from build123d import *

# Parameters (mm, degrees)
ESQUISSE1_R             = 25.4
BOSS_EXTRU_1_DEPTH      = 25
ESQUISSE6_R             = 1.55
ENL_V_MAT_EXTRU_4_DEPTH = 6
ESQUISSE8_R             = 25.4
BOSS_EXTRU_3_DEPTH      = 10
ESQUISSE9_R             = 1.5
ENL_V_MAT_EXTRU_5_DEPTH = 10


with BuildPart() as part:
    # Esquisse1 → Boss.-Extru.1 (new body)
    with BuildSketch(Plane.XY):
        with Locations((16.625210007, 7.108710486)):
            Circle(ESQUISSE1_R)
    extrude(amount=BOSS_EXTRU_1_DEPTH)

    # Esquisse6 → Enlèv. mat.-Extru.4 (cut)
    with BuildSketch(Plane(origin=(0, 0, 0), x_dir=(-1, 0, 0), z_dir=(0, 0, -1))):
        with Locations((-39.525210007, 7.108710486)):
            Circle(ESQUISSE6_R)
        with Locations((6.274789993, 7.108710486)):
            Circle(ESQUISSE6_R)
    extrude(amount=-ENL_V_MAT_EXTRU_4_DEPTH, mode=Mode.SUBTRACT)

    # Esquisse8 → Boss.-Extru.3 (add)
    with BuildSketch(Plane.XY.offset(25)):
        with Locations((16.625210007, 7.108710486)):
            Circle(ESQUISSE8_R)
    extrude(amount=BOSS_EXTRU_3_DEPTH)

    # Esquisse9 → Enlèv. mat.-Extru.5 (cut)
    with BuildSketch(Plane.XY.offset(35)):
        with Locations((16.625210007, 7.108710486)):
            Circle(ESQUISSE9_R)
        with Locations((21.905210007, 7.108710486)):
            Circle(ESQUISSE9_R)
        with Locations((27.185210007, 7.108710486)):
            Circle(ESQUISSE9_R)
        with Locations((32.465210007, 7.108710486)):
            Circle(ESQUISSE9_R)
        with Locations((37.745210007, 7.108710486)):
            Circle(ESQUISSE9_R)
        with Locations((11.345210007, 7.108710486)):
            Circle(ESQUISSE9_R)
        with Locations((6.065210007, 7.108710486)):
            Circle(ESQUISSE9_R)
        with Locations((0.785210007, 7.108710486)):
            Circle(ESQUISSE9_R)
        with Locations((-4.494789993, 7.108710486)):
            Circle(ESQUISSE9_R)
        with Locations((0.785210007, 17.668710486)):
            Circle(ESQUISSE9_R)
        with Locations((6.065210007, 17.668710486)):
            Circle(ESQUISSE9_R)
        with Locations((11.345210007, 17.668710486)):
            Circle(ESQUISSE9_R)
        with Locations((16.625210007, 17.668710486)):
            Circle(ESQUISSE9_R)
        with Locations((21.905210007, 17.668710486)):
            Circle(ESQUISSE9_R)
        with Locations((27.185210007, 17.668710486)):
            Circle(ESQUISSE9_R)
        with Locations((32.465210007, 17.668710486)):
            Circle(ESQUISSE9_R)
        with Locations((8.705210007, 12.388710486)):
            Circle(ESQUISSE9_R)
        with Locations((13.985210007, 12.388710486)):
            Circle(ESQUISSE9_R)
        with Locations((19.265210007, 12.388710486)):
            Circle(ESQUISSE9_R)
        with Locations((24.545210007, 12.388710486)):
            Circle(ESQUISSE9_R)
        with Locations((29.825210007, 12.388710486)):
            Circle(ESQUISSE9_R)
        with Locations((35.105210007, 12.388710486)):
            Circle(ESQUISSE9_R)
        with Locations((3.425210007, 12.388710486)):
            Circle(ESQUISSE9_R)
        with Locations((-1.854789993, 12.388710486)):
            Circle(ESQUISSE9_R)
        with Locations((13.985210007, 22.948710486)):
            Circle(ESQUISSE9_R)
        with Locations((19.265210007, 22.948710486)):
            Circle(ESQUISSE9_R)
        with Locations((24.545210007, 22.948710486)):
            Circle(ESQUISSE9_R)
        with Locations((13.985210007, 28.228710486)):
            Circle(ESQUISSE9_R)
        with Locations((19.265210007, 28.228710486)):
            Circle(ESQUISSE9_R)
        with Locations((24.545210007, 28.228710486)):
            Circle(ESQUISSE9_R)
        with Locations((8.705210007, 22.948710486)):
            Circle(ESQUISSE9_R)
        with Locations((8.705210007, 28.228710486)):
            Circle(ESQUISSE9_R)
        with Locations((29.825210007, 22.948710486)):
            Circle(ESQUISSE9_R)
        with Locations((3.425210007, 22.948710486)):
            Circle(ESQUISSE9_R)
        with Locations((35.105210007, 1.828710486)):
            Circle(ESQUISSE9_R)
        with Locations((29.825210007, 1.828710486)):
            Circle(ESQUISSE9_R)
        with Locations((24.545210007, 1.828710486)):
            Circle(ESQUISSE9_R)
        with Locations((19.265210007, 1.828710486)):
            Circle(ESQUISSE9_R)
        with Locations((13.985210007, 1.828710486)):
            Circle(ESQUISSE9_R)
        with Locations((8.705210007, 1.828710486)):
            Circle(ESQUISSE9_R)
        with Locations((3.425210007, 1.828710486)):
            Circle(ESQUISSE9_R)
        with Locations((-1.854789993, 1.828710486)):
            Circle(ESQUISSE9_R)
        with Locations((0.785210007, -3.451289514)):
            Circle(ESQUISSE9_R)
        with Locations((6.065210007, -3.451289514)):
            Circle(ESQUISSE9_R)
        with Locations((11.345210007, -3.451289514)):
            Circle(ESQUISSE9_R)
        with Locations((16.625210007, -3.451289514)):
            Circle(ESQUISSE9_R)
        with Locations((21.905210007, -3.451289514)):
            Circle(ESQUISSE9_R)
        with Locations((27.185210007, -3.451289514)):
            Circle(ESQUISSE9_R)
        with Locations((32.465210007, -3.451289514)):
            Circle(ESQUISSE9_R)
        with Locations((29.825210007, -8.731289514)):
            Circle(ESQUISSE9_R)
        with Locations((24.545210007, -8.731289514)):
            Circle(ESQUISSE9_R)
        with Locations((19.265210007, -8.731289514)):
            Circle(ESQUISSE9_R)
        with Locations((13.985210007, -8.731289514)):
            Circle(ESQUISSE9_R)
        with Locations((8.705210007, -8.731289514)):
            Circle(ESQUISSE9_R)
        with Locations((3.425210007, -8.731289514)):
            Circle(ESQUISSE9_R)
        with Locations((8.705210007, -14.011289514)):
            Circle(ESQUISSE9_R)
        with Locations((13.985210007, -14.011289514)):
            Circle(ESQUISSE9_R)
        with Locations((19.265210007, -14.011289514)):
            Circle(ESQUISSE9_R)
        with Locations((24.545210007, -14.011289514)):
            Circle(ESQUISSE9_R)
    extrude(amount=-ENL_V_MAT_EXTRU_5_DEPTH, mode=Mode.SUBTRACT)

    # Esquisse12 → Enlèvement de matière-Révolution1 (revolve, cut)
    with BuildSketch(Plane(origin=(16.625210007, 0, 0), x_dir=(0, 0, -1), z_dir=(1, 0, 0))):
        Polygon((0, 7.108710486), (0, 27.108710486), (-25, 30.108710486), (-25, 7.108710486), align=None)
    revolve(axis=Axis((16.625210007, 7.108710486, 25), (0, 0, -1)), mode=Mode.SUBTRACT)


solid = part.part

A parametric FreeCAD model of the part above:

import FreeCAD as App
import Part
import Sketcher

V = App.Vector
Q = App.Units.Quantity


def add_polygon(sketch, points):
    """Adds a closed chain of lines whose ends are joined by coincident constraints."""
    first, n = sketch.GeometryCount, len(points)
    for a, b in zip(points, points[1:] + points[:1]):
        sketch.addGeometry(Part.LineSegment(App.Vector(*a, 0), App.Vector(*b, 0)), False)
    for i in range(n):
        sketch.addConstraint(Sketcher.Constraint("Coincident", first + i, 2, first + (i + 1) % n, 1))

doc = App.newDocument("Part")
params = doc.addObject("Spreadsheet::Sheet", "Params")
for row, (alias, value) in enumerate([
    ("sketch1_diameter", "50.8 mm"),
    ("pad1_length", "25 mm"),
    ("sketch2_diameter", "3.1 mm"),
    ("pocket1_length", "6 mm"),
    ("sketch3_diameter", "50.8 mm"),
    ("pad2_length", "10 mm"),
    ("sketch4_diameter", "3 mm"),
    ("pocket2_length", "10 mm"),
    ("sketch5_width", "20 mm"),
    ("sketch5_width2", "23 mm"),
    ("sketch5_height", "25 mm"),
    ("groove_angle", "360 deg"),
], start=1):
    params.set(f"A{row}", alias)
    params.set(f"B{row}", "=" + value)
    params.setAlias(f"B{row}", alias)

body = doc.addObject("PartDesign::Body", "Body")

# Sketch on XY plane
sketch1 = body.newObject("Sketcher::SketchObject", "Sketch")
sketch1.AttachmentSupport = (doc.getObject("XY_Plane"), [""])
sketch1.MapMode = "FlatFace"
sketch1.addGeometry(Part.Circle(V(16.62521, 7.10871, 0), V(0, 0, 1), 25.4), False)
sketch1.addConstraint([
    Sketcher.Constraint("Diameter", 0, Q("50.8 mm")),
    Sketcher.Constraint("DistanceX", -1, 1, 0, 3, Q("16.62521 mm")),
    Sketcher.Constraint("DistanceY", -1, 1, 0, 3, Q("7.10871 mm")),
])
sketch1.setExpression("Constraints[0]", "Params.sketch1_diameter")
pad1 = body.newObject("PartDesign::Pad", "Pad")
pad1.Profile = sketch1
pad1.setExpression("Length", "Params.pad1_length")

# Sketch on XY plane
sketch2 = body.newObject("Sketcher::SketchObject", "Sketch001")
sketch2.AttachmentSupport = (doc.getObject("XY_Plane"), [""])
sketch2.MapMode = "FlatFace"
sketch2.addGeometry([
    Part.Circle(V(39.52521, 7.10871, 0), V(0, 0, 1), 1.55),
    Part.Circle(V(-6.27479, 7.10871, 0), V(0, 0, 1), 1.55),
], False)
sketch2.addConstraint([
    Sketcher.Constraint("Equal", 0, 1),
    Sketcher.Constraint("Horizontal", 0, 3, 1, 3),
    Sketcher.Constraint("Diameter", 0, Q("3.1 mm")),
    Sketcher.Constraint("DistanceX", 1, 3, 0, 3, Q("45.8 mm")),
    Sketcher.Constraint("DistanceX", -1, 1, 0, 3, Q("39.52521 mm")),
    Sketcher.Constraint("DistanceY", -1, 1, 0, 3, Q("7.10871 mm")),
])
sketch2.setExpression("Constraints[2]", "Params.sketch2_diameter")
pocket1 = body.newObject("PartDesign::Pocket", "Pocket")
pocket1.Profile = sketch2
pocket1.setExpression("Length", "Params.pocket1_length")
pocket1.Reversed = True

# Sketch on XY plane
sketch3 = body.newObject("Sketcher::SketchObject", "Sketch002")
sketch3.AttachmentSupport = (doc.getObject("XY_Plane"), [""])
sketch3.MapMode = "FlatFace"
sketch3.AttachmentOffset = App.Placement(V(0, 0, 25), App.Rotation())
sketch3.addGeometry(Part.Circle(V(16.62521, 7.10871, 0), V(0, 0, 1), 25.4), False)
sketch3.addConstraint([
    Sketcher.Constraint("Diameter", 0, Q("50.8 mm")),
    Sketcher.Constraint("DistanceX", -1, 1, 0, 3, Q("16.62521 mm")),
    Sketcher.Constraint("DistanceY", -1, 1, 0, 3, Q("7.10871 mm")),
])
sketch3.setExpression("Constraints[0]", "Params.sketch3_diameter")
pad2 = body.newObject("PartDesign::Pad", "Pad001")
pad2.Profile = sketch3
pad2.setExpression("Length", "Params.pad2_length")

# Sketch on XY plane
sketch4 = body.newObject("Sketcher::SketchObject", "Sketch003")
sketch4.AttachmentSupport = (doc.getObject("XY_Plane"), [""])
sketch4.MapMode = "FlatFace"
sketch4.AttachmentOffset = App.Placement(V(0, 0, 35), App.Rotation())
sketch4.addGeometry([
    Part.Circle(V(16.62521, 7.10871, 0), V(0, 0, 1), 1.5),  # 0
    Part.Circle(V(21.90521, 7.10871, 0), V(0, 0, 1), 1.5),  # 1
    Part.Circle(V(27.18521, 7.10871, 0), V(0, 0, 1), 1.5),  # 2
    Part.Circle(V(32.46521, 7.10871, 0), V(0, 0, 1), 1.5),  # 3
    Part.Circle(V(37.74521, 7.10871, 0), V(0, 0, 1), 1.5),  # 4
    Part.Circle(V(11.34521, 7.10871, 0), V(0, 0, 1), 1.5),  # 5
    Part.Circle(V(6.06521, 7.10871, 0), V(0, 0, 1), 1.5),  # 6
    Part.Circle(V(0.78521, 7.10871, 0), V(0, 0, 1), 1.5),  # 7
    Part.Circle(V(-4.49479, 7.10871, 0), V(0, 0, 1), 1.5),  # 8
    Part.Circle(V(0.78521, 17.66871, 0), V(0, 0, 1), 1.5),  # 9
    Part.Circle(V(6.06521, 17.66871, 0), V(0, 0, 1), 1.5),  # 10
    Part.Circle(V(11.34521, 17.66871, 0), V(0, 0, 1), 1.5),  # 11
    Part.Circle(V(16.62521, 17.66871, 0), V(0, 0, 1), 1.5),  # 12
    Part.Circle(V(21.90521, 17.66871, 0), V(0, 0, 1), 1.5),  # 13
    Part.Circle(V(27.18521, 17.66871, 0), V(0, 0, 1), 1.5),  # 14
    Part.Circle(V(32.46521, 17.66871, 0), V(0, 0, 1), 1.5),  # 15
    Part.Circle(V(8.70521, 12.38871, 0), V(0, 0, 1), 1.5),  # 16
    Part.Circle(V(13.98521, 12.38871, 0), V(0, 0, 1), 1.5),  # 17
    Part.Circle(V(19.26521, 12.38871, 0), V(0, 0, 1), 1.5),  # 18
    Part.Circle(V(24.54521, 12.38871, 0), V(0, 0, 1), 1.5),  # 19
    Part.Circle(V(29.82521, 12.38871, 0), V(0, 0, 1), 1.5),  # 20
    Part.Circle(V(35.10521, 12.38871, 0), V(0, 0, 1), 1.5),  # 21
    Part.Circle(V(3.42521, 12.38871, 0), V(0, 0, 1), 1.5),  # 22
    Part.Circle(V(-1.85479, 12.38871, 0), V(0, 0, 1), 1.5),  # 23
    Part.Circle(V(13.98521, 22.94871, 0), V(0, 0, 1), 1.5),  # 24
    Part.Circle(V(19.26521, 22.94871, 0), V(0, 0, 1), 1.5),  # 25
    Part.Circle(V(24.54521, 22.94871, 0), V(0, 0, 1), 1.5),  # 26
    Part.Circle(V(13.98521, 28.22871, 0), V(0, 0, 1), 1.5),  # 27
    Part.Circle(V(19.26521, 28.22871, 0), V(0, 0, 1), 1.5),  # 28
    Part.Circle(V(24.54521, 28.22871, 0), V(0, 0, 1), 1.5),  # 29
    Part.Circle(V(8.70521, 22.94871, 0), V(0, 0, 1), 1.5),  # 30
    Part.Circle(V(8.70521, 28.22871, 0), V(0, 0, 1), 1.5),  # 31
    Part.Circle(V(29.82521, 22.94871, 0), V(0, 0, 1), 1.5),  # 32
    Part.Circle(V(3.42521, 22.94871, 0), V(0, 0, 1), 1.5),  # 33
    Part.Circle(V(35.10521, 1.82871, 0), V(0, 0, 1), 1.5),  # 34
    Part.Circle(V(29.82521, 1.82871, 0), V(0, 0, 1), 1.5),  # 35
    Part.Circle(V(24.54521, 1.82871, 0), V(0, 0, 1), 1.5),  # 36
    Part.Circle(V(19.26521, 1.82871, 0), V(0, 0, 1), 1.5),  # 37
    Part.Circle(V(13.98521, 1.82871, 0), V(0, 0, 1), 1.5),  # 38
    Part.Circle(V(8.70521, 1.82871, 0), V(0, 0, 1), 1.5),  # 39
    Part.Circle(V(3.42521, 1.82871, 0), V(0, 0, 1), 1.5),  # 40
    Part.Circle(V(-1.85479, 1.82871, 0), V(0, 0, 1), 1.5),  # 41
    Part.Circle(V(0.78521, -3.45129, 0), V(0, 0, 1), 1.5),  # 42
    Part.Circle(V(6.06521, -3.45129, 0), V(0, 0, 1), 1.5),  # 43
    Part.Circle(V(11.34521, -3.45129, 0), V(0, 0, 1), 1.5),  # 44
    Part.Circle(V(16.62521, -3.45129, 0), V(0, 0, 1), 1.5),  # 45
    Part.Circle(V(21.90521, -3.45129, 0), V(0, 0, 1), 1.5),  # 46
    Part.Circle(V(27.18521, -3.45129, 0), V(0, 0, 1), 1.5),  # 47
    Part.Circle(V(32.46521, -3.45129, 0), V(0, 0, 1), 1.5),  # 48
    Part.Circle(V(29.82521, -8.73129, 0), V(0, 0, 1), 1.5),  # 49
    Part.Circle(V(24.54521, -8.73129, 0), V(0, 0, 1), 1.5),  # 50
    Part.Circle(V(19.26521, -8.73129, 0), V(0, 0, 1), 1.5),  # 51
    Part.Circle(V(13.98521, -8.73129, 0), V(0, 0, 1), 1.5),  # 52
    Part.Circle(V(8.70521, -8.73129, 0), V(0, 0, 1), 1.5),  # 53
    Part.Circle(V(3.42521, -8.73129, 0), V(0, 0, 1), 1.5),  # 54
    Part.Circle(V(8.70521, -14.01129, 0), V(0, 0, 1), 1.5),  # 55
    Part.Circle(V(13.98521, -14.01129, 0), V(0, 0, 1), 1.5),  # 56
    Part.Circle(V(19.26521, -14.01129, 0), V(0, 0, 1), 1.5),  # 57
    Part.Circle(V(24.54521, -14.01129, 0), V(0, 0, 1), 1.5),  # 58
], False)
sketch4.addConstraint([
    Sketcher.Constraint("Equal", 0, 1),
    Sketcher.Constraint("Equal", 1, 2),
    Sketcher.Constraint("Equal", 2, 3),
    Sketcher.Constraint("Equal", 3, 4),
    Sketcher.Constraint("Equal", 4, 5),
    Sketcher.Constraint("Equal", 5, 6),
    Sketcher.Constraint("Equal", 6, 7),
    Sketcher.Constraint("Equal", 7, 8),
    Sketcher.Constraint("Equal", 8, 9),
    Sketcher.Constraint("Equal", 9, 10),
    Sketcher.Constraint("Equal", 10, 11),
    Sketcher.Constraint("Equal", 11, 12),
    Sketcher.Constraint("Equal", 12, 13),
    Sketcher.Constraint("Equal", 13, 14),
    Sketcher.Constraint("Equal", 14, 15),
    Sketcher.Constraint("Equal", 15, 16),
    Sketcher.Constraint("Equal", 16, 17),
    Sketcher.Constraint("Equal", 17, 18),
    Sketcher.Constraint("Equal", 18, 19),
    Sketcher.Constraint("Equal", 19, 20),
    Sketcher.Constraint("Equal", 20, 21),
    Sketcher.Constraint("Equal", 21, 22),
    Sketcher.Constraint("Equal", 22, 23),
    Sketcher.Constraint("Equal", 23, 24),
    Sketcher.Constraint("Equal", 24, 25),
    Sketcher.Constraint("Equal", 25, 26),
    Sketcher.Constraint("Equal", 26, 27),
    Sketcher.Constraint("Equal", 27, 28),
    Sketcher.Constraint("Equal", 28, 29),
    Sketcher.Constraint("Equal", 29, 30),
    Sketcher.Constraint("Equal", 30, 31),
    Sketcher.Constraint("Equal", 31, 32),
    Sketcher.Constraint("Equal", 32, 33),
    Sketcher.Constraint("Equal", 33, 34),
    Sketcher.Constraint("Equal", 34, 35),
    Sketcher.Constraint("Equal", 35, 36),
    Sketcher.Constraint("Equal", 36, 37),
    Sketcher.Constraint("Equal", 37, 38),
    Sketcher.Constraint("Equal", 38, 39),
    Sketcher.Constraint("Equal", 39, 40),
    Sketcher.Constraint("Equal", 40, 41),
    Sketcher.Constraint("Equal", 41, 42),
    Sketcher.Constraint("Equal", 42, 43),
    Sketcher.Constraint("Equal", 43, 44),
    Sketcher.Constraint("Equal", 44, 45),
    Sketcher.Constraint("Equal", 45, 46),
    Sketcher.Constraint("Equal", 46, 47),
    Sketcher.Constraint("Equal", 47, 48),
    Sketcher.Constraint("Equal", 48, 49),
    Sketcher.Constraint("Equal", 49, 50),
    Sketcher.Constraint("Equal", 50, 51),
    Sketcher.Constraint("Equal", 51, 52),
    Sketcher.Constraint("Equal", 52, 53),
    Sketcher.Constraint("Equal", 53, 54),
    Sketcher.Constraint("Equal", 54, 55),
    Sketcher.Constraint("Equal", 55, 56),
    Sketcher.Constraint("Equal", 56, 57),
    Sketcher.Constraint("Equal", 57, 58),
    Sketcher.Constraint("Horizontal", 0, 3, 1, 3),
    Sketcher.Constraint("Horizontal", 1, 3, 2, 3),
    Sketcher.Constraint("Horizontal", 2, 3, 3, 3),
    Sketcher.Constraint("Horizontal", 3, 3, 4, 3),
    Sketcher.Constraint("Horizontal", 4, 3, 5, 3),
    Sketcher.Constraint("Horizontal", 5, 3, 6, 3),
    Sketcher.Constraint("Horizontal", 6, 3, 7, 3),
    Sketcher.Constraint("Horizontal", 7, 3, 8, 3),
    Sketcher.Constraint("Horizontal", 9, 3, 10, 3),
    Sketcher.Constraint("Horizontal", 10, 3, 11, 3),
    Sketcher.Constraint("Horizontal", 11, 3, 12, 3),
    Sketcher.Constraint("Horizontal", 12, 3, 13, 3),
    Sketcher.Constraint("Horizontal", 13, 3, 14, 3),
    Sketcher.Constraint("Horizontal", 14, 3, 15, 3),
    Sketcher.Constraint("Horizontal", 16, 3, 17, 3),
    Sketcher.Constraint("Horizontal", 17, 3, 18, 3),
    Sketcher.Constraint("Horizontal", 18, 3, 19, 3),
    Sketcher.Constraint("Horizontal", 19, 3, 20, 3),
    Sketcher.Constraint("Horizontal", 20, 3, 21, 3),
    Sketcher.Constraint("Horizontal", 21, 3, 22, 3),
    Sketcher.Constraint("Horizontal", 22, 3, 23, 3),
    Sketcher.Constraint("Horizontal", 24, 3, 25, 3),
    Sketcher.Constraint("Horizontal", 25, 3, 26, 3),
    Sketcher.Constraint("Horizontal", 27, 3, 28, 3),
    Sketcher.Constraint("Horizontal", 28, 3, 29, 3),
    Sketcher.Constraint("Horizontal", 26, 3, 30, 3),
    Sketcher.Constraint("Horizontal", 29, 3, 31, 3),
    Sketcher.Constraint("Horizontal", 30, 3, 32, 3),
    Sketcher.Constraint("Horizontal", 32, 3, 33, 3),
    Sketcher.Constraint("Horizontal", 34, 3, 35, 3),
    Sketcher.Constraint("Horizontal", 35, 3, 36, 3),
    Sketcher.Constraint("Horizontal", 36, 3, 37, 3),
    Sketcher.Constraint("Horizontal", 37, 3, 38, 3),
    Sketcher.Constraint("Horizontal", 38, 3, 39, 3),
    Sketcher.Constraint("Horizontal", 39, 3, 40, 3),
    Sketcher.Constraint("Horizontal", 40, 3, 41, 3),
    Sketcher.Constraint("Horizontal", 42, 3, 43, 3),
    Sketcher.Constraint("Horizontal", 43, 3, 44, 3),
    Sketcher.Constraint("Horizontal", 44, 3, 45, 3),
    Sketcher.Constraint("Horizontal", 45, 3, 46, 3),
    Sketcher.Constraint("Horizontal", 46, 3, 47, 3),
    Sketcher.Constraint("Horizontal", 47, 3, 48, 3),
    Sketcher.Constraint("Horizontal", 49, 3, 50, 3),
    Sketcher.Constraint("Horizontal", 50, 3, 51, 3),
    Sketcher.Constraint("Horizontal", 51, 3, 52, 3),
    Sketcher.Constraint("Horizontal", 52, 3, 53, 3),
    Sketcher.Constraint("Horizontal", 53, 3, 54, 3),
    Sketcher.Constraint("Horizontal", 55, 3, 56, 3),
    Sketcher.Constraint("Horizontal", 56, 3, 57, 3),
    Sketcher.Constraint("Horizontal", 57, 3, 58, 3),
    Sketcher.Constraint("Vertical", 7, 3, 9, 3),
    Sketcher.Constraint("Vertical", 6, 3, 10, 3),
    Sketcher.Constraint("Vertical", 5, 3, 11, 3),
    Sketcher.Constraint("Vertical", 0, 3, 12, 3),
    Sketcher.Constraint("Vertical", 1, 3, 13, 3),
    Sketcher.Constraint("Vertical", 2, 3, 14, 3),
    Sketcher.Constraint("Vertical", 3, 3, 15, 3),
    Sketcher.Constraint("Vertical", 17, 3, 24, 3),
    Sketcher.Constraint("Vertical", 18, 3, 25, 3),
    Sketcher.Constraint("Vertical", 19, 3, 26, 3),
    Sketcher.Constraint("Vertical", 24, 3, 27, 3),
    Sketcher.Constraint("Vertical", 25, 3, 28, 3),
    Sketcher.Constraint("Vertical", 26, 3, 29, 3),
    Sketcher.Constraint("Vertical", 16, 3, 30, 3),
    Sketcher.Constraint("Vertical", 30, 3, 31, 3),
    Sketcher.Constraint("Vertical", 20, 3, 32, 3),
    Sketcher.Constraint("Vertical", 22, 3, 33, 3),
    Sketcher.Constraint("Vertical", 21, 3, 34, 3),
    Sketcher.Constraint("Vertical", 32, 3, 35, 3),
    Sketcher.Constraint("Vertical", 29, 3, 36, 3),
    Sketcher.Constraint("Vertical", 28, 3, 37, 3),
    Sketcher.Constraint("Vertical", 27, 3, 38, 3),
    Sketcher.Constraint("Vertical", 31, 3, 39, 3),
    Sketcher.Constraint("Vertical", 33, 3, 40, 3),
    Sketcher.Constraint("Vertical", 23, 3, 41, 3),
    Sketcher.Constraint("Vertical", 9, 3, 42, 3),
    Sketcher.Constraint("Vertical", 10, 3, 43, 3),
    Sketcher.Constraint("Vertical", 11, 3, 44, 3),
    Sketcher.Constraint("Vertical", 12, 3, 45, 3),
    Sketcher.Constraint("Vertical", 13, 3, 46, 3),
    Sketcher.Constraint("Vertical", 14, 3, 47, 3),
    Sketcher.Constraint("Vertical", 15, 3, 48, 3),
    Sketcher.Constraint("Vertical", 35, 3, 49, 3),
    Sketcher.Constraint("Vertical", 36, 3, 50, 3),
    Sketcher.Constraint("Vertical", 37, 3, 51, 3),
    Sketcher.Constraint("Vertical", 38, 3, 52, 3),
    Sketcher.Constraint("Vertical", 39, 3, 53, 3),
    Sketcher.Constraint("Vertical", 40, 3, 54, 3),
    Sketcher.Constraint("Vertical", 53, 3, 55, 3),
    Sketcher.Constraint("Vertical", 52, 3, 56, 3),
    Sketcher.Constraint("Vertical", 51, 3, 57, 3),
    Sketcher.Constraint("Vertical", 50, 3, 58, 3),
    Sketcher.Constraint("Diameter", 0, Q("3 mm")),
    Sketcher.Constraint("DistanceX", 5, 3, 4, 3, Q("26.4 mm")),
    Sketcher.Constraint("DistanceX", 6, 3, 3, 3, Q("26.4 mm")),
    Sketcher.Constraint("DistanceX", 7, 3, 2, 3, Q("26.4 mm")),
    Sketcher.Constraint("DistanceX", 8, 3, 1, 3, Q("26.4 mm")),
    Sketcher.Constraint("DistanceX", 0, 3, 1, 3, Q("5.28 mm")),
    Sketcher.Constraint("DistanceX", 1, 3, 2, 3, Q("5.28 mm")),
    Sketcher.Constraint("DistanceX", 2, 3, 3, 3, Q("5.28 mm")),
    Sketcher.Constraint("DistanceX", 3, 3, 4, 3, Q("5.28 mm")),
    Sketcher.Constraint("DistanceY", 7, 3, 9, 3, Q("10.56 mm")),
    Sketcher.Constraint("DistanceX", 10, 3, 16, 3, Q("2.64 mm")),
    Sketcher.Constraint("DistanceY", 16, 3, 10, 3, Q("5.28 mm")),
    Sketcher.Constraint("DistanceX", 16, 3, 17, 3, Q("5.28 mm")),
    Sketcher.Constraint("DistanceX", 17, 3, 18, 3, Q("5.28 mm")),
    Sketcher.Constraint("DistanceX", 18, 3, 19, 3, Q("5.28 mm")),
    Sketcher.Constraint("DistanceX", 19, 3, 20, 3, Q("5.28 mm")),
    Sketcher.Constraint("DistanceX", 20, 3, 21, 3, Q("5.28 mm")),
    Sketcher.Constraint("DistanceX", 22, 3, 16, 3, Q("5.28 mm")),
    Sketcher.Constraint("DistanceX", 23, 3, 22, 3, Q("5.28 mm")),
    Sketcher.Constraint("DistanceY", 11, 3, 24, 3, Q("5.28 mm")),
    Sketcher.Constraint("DistanceY", 24, 3, 27, 3, Q("5.28 mm")),
    Sketcher.Constraint("DistanceY", 34, 3, 3, 3, Q("5.28 mm")),
    Sketcher.Constraint("DistanceY", 42, 3, 40, 3, Q("5.28 mm")),
    Sketcher.Constraint("DistanceY", 49, 3, 47, 3, Q("5.28 mm")),
    Sketcher.Constraint("DistanceY", 55, 3, 53, 3, Q("5.28 mm")),
    Sketcher.Constraint("DistanceX", -1, 1, 0, 3, Q("16.62521 mm")),
    Sketcher.Constraint("DistanceY", -1, 1, 0, 3, Q("7.10871 mm")),
])
sketch4.setExpression("Constraints[150]", "Params.sketch4_diameter")
pocket2 = body.newObject("PartDesign::Pocket", "Pocket001")
pocket2.Profile = sketch4
pocket2.setExpression("Length", "Params.pocket2_length")

# Sketch on YZ plane
sketch5 = body.newObject("Sketcher::SketchObject", "Sketch004")
sketch5.AttachmentSupport = (doc.getObject("YZ_Plane"), [""])
sketch5.MapMode = "FlatFace"
sketch5.AttachmentOffset = App.Placement(V(0, 0, 16.62521), App.Rotation())
add_polygon(sketch5, [(7.10871, 0), (27.10871, 0), (30.10871, 25), (7.10871, 25)])  # lines 0-3
sketch5.addGeometry(Part.LineSegment(V(7.10871, 25, 0), V(7.10871, 0, 0)), True)  # axis
sketch5.addConstraint([
    Sketcher.Constraint("Horizontal", 0),
    Sketcher.Constraint("Horizontal", 2),
    Sketcher.Constraint("Vertical", 3),
    Sketcher.Constraint("Vertical", 4),
    Sketcher.Constraint("Coincident", 4, 1, 2, 2),
    Sketcher.Constraint("PointOnObject", 0, 2, -1),
    Sketcher.Constraint("PointOnObject", 4, 2, -1),
    Sketcher.Constraint("DistanceX", 0, 1, 0, 2, Q("20 mm")),
    Sketcher.Constraint("DistanceX", 2, 2, 2, 1, Q("23 mm")),
    Sketcher.Constraint("DistanceY", 3, 2, 3, 1, Q("25 mm")),
    Sketcher.Constraint("DistanceX", -1, 1, 0, 2, Q("27.10871 mm")),
])
sketch5.setExpression("Constraints[11]", "Params.sketch5_width")
sketch5.setExpression("Constraints[12]", "Params.sketch5_width2")
sketch5.setExpression("Constraints[13]", "Params.sketch5_height")
groove = body.newObject("PartDesign::Groove", "Groove")
groove.Profile = sketch5
groove.ReferenceAxis = (sketch5, ["Axis0"])
groove.setExpression("Angle", "Params.groove_angle")

doc.recompute()
